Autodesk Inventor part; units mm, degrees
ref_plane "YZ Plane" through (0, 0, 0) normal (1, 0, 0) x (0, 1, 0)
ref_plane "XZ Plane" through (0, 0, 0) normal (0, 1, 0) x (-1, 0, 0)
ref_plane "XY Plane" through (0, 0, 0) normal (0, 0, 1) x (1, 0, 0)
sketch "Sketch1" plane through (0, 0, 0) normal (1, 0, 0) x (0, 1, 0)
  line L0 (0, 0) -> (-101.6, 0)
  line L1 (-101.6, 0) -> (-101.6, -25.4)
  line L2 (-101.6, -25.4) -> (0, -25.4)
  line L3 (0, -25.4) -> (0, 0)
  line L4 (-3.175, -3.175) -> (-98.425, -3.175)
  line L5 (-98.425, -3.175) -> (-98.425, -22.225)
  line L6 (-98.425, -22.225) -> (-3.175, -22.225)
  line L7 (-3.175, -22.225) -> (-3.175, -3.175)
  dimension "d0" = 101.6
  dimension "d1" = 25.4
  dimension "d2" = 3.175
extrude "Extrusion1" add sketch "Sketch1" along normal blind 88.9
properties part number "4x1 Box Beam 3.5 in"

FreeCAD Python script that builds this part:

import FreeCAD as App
import Part
import Sketcher

V = App.Vector
Q = App.Units.Quantity


def add_polygon(sketch, points):
    """Adds a closed chain of lines whose ends are joined by coincident constraints."""
    first, n = sketch.GeometryCount, len(points)
    for a, b in zip(points, points[1:] + points[:1]):
        sketch.addGeometry(Part.LineSegment(App.Vector(*a, 0), App.Vector(*b, 0)), False)
    for i in range(n):
        sketch.addConstraint(Sketcher.Constraint("Coincident", first + i, 2, first + (i + 1) % n, 1))

doc = App.newDocument("Part")
params = doc.addObject("Spreadsheet::Sheet", "Params")
for row, (alias, value) in enumerate([
    ("sketch1_width", "4 in"),
    ("sketch1_height", "1 in"),
    ("pad1_length", "3.5 in"),
], start=1):
    params.set(f"A{row}", alias)
    params.set(f"B{row}", "=" + value)
    params.setAlias(f"B{row}", alias)

body = doc.addObject("PartDesign::Body", "Body")

sketch1 = doc.addObject("Sketcher::SketchObject", "Sketch")
body.addObject(sketch1)
sketch1.AttachmentSupport = (doc.YZ_Plane, [""])
sketch1.MapMode = "FlatFace"
add_polygon(sketch1, [(0, -25), (0, 0), (-102, 0), (-102, -25)])
add_polygon(sketch1, [(-98, -3), (-3, -3), (-3, -22), (-98, -22)])
sketch1.addConstraint([
    Sketcher.Constraint("Vertical", 0),
    Sketcher.Constraint("Horizontal", 1),
    Sketcher.Constraint("Vertical", 2),
    Sketcher.Constraint("Horizontal", 3),
    Sketcher.Constraint("Horizontal", 4),
    Sketcher.Constraint("Vertical", 5),
    Sketcher.Constraint("Horizontal", 6),
    Sketcher.Constraint("Vertical", 7),
    Sketcher.Constraint("Coincident", 0, 2, -1, 1),
    Sketcher.Constraint("DistanceX", 1, 2, 1, 1, Q("4 in")),
    Sketcher.Constraint("DistanceY", 0, 1, 0, 2, Q("1 in")),
    Sketcher.Constraint("DistanceX", 4, 2, -1, 1, Q("0.125 in")),
    Sketcher.Constraint("DistanceY", 4, 2, -1, 1, Q("0.125 in")),
    Sketcher.Constraint("DistanceY", 3, 2, 5, 2, Q("0.125 in")),
    Sketcher.Constraint("DistanceX", 2, 2, 6, 2, Q("0.125 in")),
])
sketch1.setExpression("Constraints[17]", "Params.sketch1_width")
sketch1.setExpression("Constraints[18]", "Params.sketch1_height")
pad1 = doc.addObject("PartDesign::Pad", "Pad")
body.addObject(pad1)
pad1.Profile = sketch1
pad1.setExpression("Length", "Params.pad1_length")

doc.recompute()
